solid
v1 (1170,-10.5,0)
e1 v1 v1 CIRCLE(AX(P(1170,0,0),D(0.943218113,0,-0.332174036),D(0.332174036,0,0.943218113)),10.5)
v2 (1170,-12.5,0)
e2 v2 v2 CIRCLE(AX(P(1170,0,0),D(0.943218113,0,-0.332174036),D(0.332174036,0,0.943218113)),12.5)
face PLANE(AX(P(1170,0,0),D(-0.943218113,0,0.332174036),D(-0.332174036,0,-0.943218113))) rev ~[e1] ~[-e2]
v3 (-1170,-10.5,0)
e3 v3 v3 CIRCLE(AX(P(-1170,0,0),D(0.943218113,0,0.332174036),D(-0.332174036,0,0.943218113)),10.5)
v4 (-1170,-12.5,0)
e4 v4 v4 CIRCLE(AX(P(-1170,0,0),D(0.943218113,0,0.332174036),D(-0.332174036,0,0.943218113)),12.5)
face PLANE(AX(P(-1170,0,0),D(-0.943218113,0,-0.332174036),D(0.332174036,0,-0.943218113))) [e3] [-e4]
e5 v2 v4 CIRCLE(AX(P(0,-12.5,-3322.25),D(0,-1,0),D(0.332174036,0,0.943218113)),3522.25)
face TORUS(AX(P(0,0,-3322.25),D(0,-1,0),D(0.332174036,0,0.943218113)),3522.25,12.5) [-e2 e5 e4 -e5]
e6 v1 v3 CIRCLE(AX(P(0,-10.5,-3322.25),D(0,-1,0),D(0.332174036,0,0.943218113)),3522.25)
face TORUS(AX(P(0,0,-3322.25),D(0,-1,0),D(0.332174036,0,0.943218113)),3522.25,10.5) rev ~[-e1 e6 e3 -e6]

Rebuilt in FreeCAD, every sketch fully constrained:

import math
import FreeCAD as App
import Part
import Sketcher
from FreeCAD import Vector

doc = App.newDocument("Part")
body = doc.addObject("PartDesign::Body", "Body")

# Sketch on an angled plane
sketch1 = body.newObject("Sketcher::SketchObject", "Sketch")
sketch1.Placement = App.Placement(Vector(-1040.902679, 0, -366.575705), App.Rotation(Vector(0, -1, 0), Vector(-0.33217404, 0, 0.943218112), Vector(-0.943218112, 0, -0.33217404), "ZXY"))
sketch1.addGeometry(Part.Circle(Vector(0, 389, 0), Vector(0, 0, 1), 12), False)
sketch1.addGeometry(Part.Circle(Vector(0, 389, 0), Vector(0, 0, 1), 10), False)
sketch1.addConstraint(Sketcher.Constraint("Coincident", 1, 3, 0, 3))
sketch1.addConstraint(Sketcher.Constraint("PointOnObject", 0, 3, -2))
sketch1.addConstraint(Sketcher.Constraint("Diameter", 0, 25.0))
sketch1.addConstraint(Sketcher.Constraint("Diameter", 1, 21.0))
sketch1.addConstraint(Sketcher.Constraint("DistanceY", -1, 1, 0, 3, 388.643623))

# Sketch on XZ plane
sketch2 = body.newObject("Sketcher::SketchObject", "Sketch001")
sketch2.AttachmentSupport = (doc.getObject("XZ_Plane"), [""])
sketch2.MapMode = "FlatFace"
sketch2.addGeometry(Part.ArcOfCircle(Part.Circle(Vector(0, -3322, 0), Vector(0, 0, 1), 3522), math.radians(71), math.radians(109)), False)
sketch2.addConstraint(Sketcher.Constraint("Symmetric", 0, 1, 0, 2, -1, 1))
sketch2.addConstraint(Sketcher.Constraint("PointOnObject", 0, 3, -2))
sketch2.addConstraint(Sketcher.Constraint("Radius", 0, 3522.25))
sketch2.addConstraint(Sketcher.Constraint("DistanceY", 0, 3, -1, 1, 3322.25))
doc.recompute()

additivepipe = body.newObject("PartDesign::AdditivePipe", "AdditivePipe")
additivepipe.Profile = sketch1
additivepipe.Spine = (sketch2, ["Edge1"])

doc.recompute()
